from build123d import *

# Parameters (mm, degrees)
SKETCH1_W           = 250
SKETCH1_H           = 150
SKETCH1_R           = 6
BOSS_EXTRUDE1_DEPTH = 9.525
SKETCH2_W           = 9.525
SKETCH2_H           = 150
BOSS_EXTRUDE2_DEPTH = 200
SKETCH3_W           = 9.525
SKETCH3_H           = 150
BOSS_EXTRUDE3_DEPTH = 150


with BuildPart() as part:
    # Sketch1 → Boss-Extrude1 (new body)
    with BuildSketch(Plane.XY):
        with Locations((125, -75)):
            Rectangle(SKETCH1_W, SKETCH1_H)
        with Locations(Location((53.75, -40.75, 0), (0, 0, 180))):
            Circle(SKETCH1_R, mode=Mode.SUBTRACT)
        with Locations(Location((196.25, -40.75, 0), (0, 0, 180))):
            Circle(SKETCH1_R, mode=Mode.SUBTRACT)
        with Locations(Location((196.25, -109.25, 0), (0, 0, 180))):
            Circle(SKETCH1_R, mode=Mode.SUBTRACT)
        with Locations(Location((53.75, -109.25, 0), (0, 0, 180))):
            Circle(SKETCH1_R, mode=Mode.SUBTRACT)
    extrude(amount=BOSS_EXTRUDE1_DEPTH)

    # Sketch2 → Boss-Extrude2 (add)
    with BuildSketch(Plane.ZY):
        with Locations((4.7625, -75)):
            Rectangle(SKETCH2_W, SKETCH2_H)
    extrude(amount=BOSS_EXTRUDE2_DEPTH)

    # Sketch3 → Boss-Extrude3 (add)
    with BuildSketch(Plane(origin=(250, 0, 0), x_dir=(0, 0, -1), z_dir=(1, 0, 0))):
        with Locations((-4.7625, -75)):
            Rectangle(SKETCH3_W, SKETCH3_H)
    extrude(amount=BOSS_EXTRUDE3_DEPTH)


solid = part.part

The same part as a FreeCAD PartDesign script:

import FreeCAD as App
import Part
import Sketcher

V = App.Vector
Q = App.Units.Quantity


def add_polygon(sketch, points):
    """Adds a closed chain of lines whose ends are joined by coincident constraints."""
    first, n = sketch.GeometryCount, len(points)
    for a, b in zip(points, points[1:] + points[:1]):
        sketch.addGeometry(Part.LineSegment(App.Vector(*a, 0), App.Vector(*b, 0)), False)
    for i in range(n):
        sketch.addConstraint(Sketcher.Constraint("Coincident", first + i, 2, first + (i + 1) % n, 1))

doc = App.newDocument("Part")
body = doc.addObject("PartDesign::Body", "Body")

# Sketch on XY plane
sketch1 = body.newObject("Sketcher::SketchObject", "Sketch")
sketch1.AttachmentSupport = (doc.getObject("XY_Plane"), [""])
sketch1.MapMode = "FlatFace"
add_polygon(sketch1, [(0, 0), (0, -150), (250, -150), (250, 0)])  # lines 0-3
sketch1.addGeometry(Part.Circle(V(54, -109, 0), V(0, 0, 1), 6), False)  # 4
sketch1.addGeometry(Part.Circle(V(196, -109, 0), V(0, 0, 1), 6), False)  # 5
sketch1.addGeometry(Part.Circle(V(54, -41, 0), V(0, 0, 1), 6), False)  # 6
sketch1.addGeometry(Part.Circle(V(196, -41, 0), V(0, 0, 1), 6), False)  # 7
sketch1.addConstraint([
    Sketcher.Constraint("Vertical", 0),
    Sketcher.Constraint("Horizontal", 1),
    Sketcher.Constraint("Vertical", 2),
    Sketcher.Constraint("Horizontal", 3),
    Sketcher.Constraint("Coincident", 3, 2, -1, 1),
    Sketcher.Constraint("Equal", 4, 5),
    Sketcher.Constraint("Equal", 5, 6),
    Sketcher.Constraint("Equal", 6, 7),
    Sketcher.Constraint("Horizontal", 4, 3, 5, 3),
    Sketcher.Constraint("Horizontal", 6, 3, 7, 3),
    Sketcher.Constraint("Vertical", 4, 3, 6, 3),
    Sketcher.Constraint("Vertical", 5, 3, 7, 3),
    Sketcher.Constraint("Diameter", 4, Q("12 mm")),
    Sketcher.Constraint("DistanceX", 1, 1, 1, 2, Q("250 mm")),
    Sketcher.Constraint("DistanceY", 0, 2, 0, 1, Q("150 mm")),
    Sketcher.Constraint("DistanceX", 4, 3, 5, 3, Q("142.5 mm")),
    Sketcher.Constraint("DistanceY", 4, 3, 6, 3, Q("68.5 mm")),
    Sketcher.Constraint("DistanceX", -1, 1, 4, 3, Q("53.75 mm")),
    Sketcher.Constraint("DistanceY", 4, 3, -1, 1, Q("109.25 mm")),
])
pad1 = body.newObject("PartDesign::Pad", "Pad")
pad1.Profile = sketch1
pad1.Length = 9.525

# Sketch on YZ plane
sketch2 = body.newObject("Sketcher::SketchObject", "Sketch001")
sketch2.AttachmentSupport = (doc.getObject("YZ_Plane"), [""])
sketch2.MapMode = "FlatFace"
add_polygon(sketch2, [(0, 0), (-150, 0), (-150, 10), (0, 10)])  # lines 0-3
sketch2.addConstraint([
    Sketcher.Constraint("Horizontal", 0),
    Sketcher.Constraint("Vertical", 1),
    Sketcher.Constraint("Horizontal", 2),
    Sketcher.Constraint("Vertical", 3),
    Sketcher.Constraint("Coincident", 3, 2, -1, 1),
    Sketcher.Constraint("DistanceX", 0, 2, 0, 1, Q("150 mm")),
    Sketcher.Constraint("DistanceY", 1, 1, 1, 2, Q("9.525 mm")),
])
pad2 = body.newObject("PartDesign::Pad", "Pad001")
pad2.Profile = sketch2
pad2.Length = 200
pad2.Reversed = True

# Sketch on YZ plane
sketch3 = body.newObject("Sketcher::SketchObject", "Sketch002")
sketch3.AttachmentSupport = (doc.getObject("YZ_Plane"), [""])
sketch3.MapMode = "FlatFace"
sketch3.AttachmentOffset = App.Placement(V(0, 0, 250), App.Rotation())
add_polygon(sketch3, [(0, 10), (-150, 10), (-150, 0), (0, 0)])  # lines 0-3
sketch3.addConstraint([
    Sketcher.Constraint("Horizontal", 0),
    Sketcher.Constraint("Vertical", 1),
    Sketcher.Constraint("Horizontal", 2),
    Sketcher.Constraint("Vertical", 3),
    Sketcher.Constraint("Coincident", 2, 2, -1, 1),
    Sketcher.Constraint("DistanceX", 0, 2, 0, 1, Q("150 mm")),
    Sketcher.Constraint("DistanceY", 1, 2, 1, 1, Q("9.525 mm")),
])
pad3 = body.newObject("PartDesign::Pad", "Pad002")
pad3.Profile = sketch3
pad3.Length = 150

doc.recompute()
